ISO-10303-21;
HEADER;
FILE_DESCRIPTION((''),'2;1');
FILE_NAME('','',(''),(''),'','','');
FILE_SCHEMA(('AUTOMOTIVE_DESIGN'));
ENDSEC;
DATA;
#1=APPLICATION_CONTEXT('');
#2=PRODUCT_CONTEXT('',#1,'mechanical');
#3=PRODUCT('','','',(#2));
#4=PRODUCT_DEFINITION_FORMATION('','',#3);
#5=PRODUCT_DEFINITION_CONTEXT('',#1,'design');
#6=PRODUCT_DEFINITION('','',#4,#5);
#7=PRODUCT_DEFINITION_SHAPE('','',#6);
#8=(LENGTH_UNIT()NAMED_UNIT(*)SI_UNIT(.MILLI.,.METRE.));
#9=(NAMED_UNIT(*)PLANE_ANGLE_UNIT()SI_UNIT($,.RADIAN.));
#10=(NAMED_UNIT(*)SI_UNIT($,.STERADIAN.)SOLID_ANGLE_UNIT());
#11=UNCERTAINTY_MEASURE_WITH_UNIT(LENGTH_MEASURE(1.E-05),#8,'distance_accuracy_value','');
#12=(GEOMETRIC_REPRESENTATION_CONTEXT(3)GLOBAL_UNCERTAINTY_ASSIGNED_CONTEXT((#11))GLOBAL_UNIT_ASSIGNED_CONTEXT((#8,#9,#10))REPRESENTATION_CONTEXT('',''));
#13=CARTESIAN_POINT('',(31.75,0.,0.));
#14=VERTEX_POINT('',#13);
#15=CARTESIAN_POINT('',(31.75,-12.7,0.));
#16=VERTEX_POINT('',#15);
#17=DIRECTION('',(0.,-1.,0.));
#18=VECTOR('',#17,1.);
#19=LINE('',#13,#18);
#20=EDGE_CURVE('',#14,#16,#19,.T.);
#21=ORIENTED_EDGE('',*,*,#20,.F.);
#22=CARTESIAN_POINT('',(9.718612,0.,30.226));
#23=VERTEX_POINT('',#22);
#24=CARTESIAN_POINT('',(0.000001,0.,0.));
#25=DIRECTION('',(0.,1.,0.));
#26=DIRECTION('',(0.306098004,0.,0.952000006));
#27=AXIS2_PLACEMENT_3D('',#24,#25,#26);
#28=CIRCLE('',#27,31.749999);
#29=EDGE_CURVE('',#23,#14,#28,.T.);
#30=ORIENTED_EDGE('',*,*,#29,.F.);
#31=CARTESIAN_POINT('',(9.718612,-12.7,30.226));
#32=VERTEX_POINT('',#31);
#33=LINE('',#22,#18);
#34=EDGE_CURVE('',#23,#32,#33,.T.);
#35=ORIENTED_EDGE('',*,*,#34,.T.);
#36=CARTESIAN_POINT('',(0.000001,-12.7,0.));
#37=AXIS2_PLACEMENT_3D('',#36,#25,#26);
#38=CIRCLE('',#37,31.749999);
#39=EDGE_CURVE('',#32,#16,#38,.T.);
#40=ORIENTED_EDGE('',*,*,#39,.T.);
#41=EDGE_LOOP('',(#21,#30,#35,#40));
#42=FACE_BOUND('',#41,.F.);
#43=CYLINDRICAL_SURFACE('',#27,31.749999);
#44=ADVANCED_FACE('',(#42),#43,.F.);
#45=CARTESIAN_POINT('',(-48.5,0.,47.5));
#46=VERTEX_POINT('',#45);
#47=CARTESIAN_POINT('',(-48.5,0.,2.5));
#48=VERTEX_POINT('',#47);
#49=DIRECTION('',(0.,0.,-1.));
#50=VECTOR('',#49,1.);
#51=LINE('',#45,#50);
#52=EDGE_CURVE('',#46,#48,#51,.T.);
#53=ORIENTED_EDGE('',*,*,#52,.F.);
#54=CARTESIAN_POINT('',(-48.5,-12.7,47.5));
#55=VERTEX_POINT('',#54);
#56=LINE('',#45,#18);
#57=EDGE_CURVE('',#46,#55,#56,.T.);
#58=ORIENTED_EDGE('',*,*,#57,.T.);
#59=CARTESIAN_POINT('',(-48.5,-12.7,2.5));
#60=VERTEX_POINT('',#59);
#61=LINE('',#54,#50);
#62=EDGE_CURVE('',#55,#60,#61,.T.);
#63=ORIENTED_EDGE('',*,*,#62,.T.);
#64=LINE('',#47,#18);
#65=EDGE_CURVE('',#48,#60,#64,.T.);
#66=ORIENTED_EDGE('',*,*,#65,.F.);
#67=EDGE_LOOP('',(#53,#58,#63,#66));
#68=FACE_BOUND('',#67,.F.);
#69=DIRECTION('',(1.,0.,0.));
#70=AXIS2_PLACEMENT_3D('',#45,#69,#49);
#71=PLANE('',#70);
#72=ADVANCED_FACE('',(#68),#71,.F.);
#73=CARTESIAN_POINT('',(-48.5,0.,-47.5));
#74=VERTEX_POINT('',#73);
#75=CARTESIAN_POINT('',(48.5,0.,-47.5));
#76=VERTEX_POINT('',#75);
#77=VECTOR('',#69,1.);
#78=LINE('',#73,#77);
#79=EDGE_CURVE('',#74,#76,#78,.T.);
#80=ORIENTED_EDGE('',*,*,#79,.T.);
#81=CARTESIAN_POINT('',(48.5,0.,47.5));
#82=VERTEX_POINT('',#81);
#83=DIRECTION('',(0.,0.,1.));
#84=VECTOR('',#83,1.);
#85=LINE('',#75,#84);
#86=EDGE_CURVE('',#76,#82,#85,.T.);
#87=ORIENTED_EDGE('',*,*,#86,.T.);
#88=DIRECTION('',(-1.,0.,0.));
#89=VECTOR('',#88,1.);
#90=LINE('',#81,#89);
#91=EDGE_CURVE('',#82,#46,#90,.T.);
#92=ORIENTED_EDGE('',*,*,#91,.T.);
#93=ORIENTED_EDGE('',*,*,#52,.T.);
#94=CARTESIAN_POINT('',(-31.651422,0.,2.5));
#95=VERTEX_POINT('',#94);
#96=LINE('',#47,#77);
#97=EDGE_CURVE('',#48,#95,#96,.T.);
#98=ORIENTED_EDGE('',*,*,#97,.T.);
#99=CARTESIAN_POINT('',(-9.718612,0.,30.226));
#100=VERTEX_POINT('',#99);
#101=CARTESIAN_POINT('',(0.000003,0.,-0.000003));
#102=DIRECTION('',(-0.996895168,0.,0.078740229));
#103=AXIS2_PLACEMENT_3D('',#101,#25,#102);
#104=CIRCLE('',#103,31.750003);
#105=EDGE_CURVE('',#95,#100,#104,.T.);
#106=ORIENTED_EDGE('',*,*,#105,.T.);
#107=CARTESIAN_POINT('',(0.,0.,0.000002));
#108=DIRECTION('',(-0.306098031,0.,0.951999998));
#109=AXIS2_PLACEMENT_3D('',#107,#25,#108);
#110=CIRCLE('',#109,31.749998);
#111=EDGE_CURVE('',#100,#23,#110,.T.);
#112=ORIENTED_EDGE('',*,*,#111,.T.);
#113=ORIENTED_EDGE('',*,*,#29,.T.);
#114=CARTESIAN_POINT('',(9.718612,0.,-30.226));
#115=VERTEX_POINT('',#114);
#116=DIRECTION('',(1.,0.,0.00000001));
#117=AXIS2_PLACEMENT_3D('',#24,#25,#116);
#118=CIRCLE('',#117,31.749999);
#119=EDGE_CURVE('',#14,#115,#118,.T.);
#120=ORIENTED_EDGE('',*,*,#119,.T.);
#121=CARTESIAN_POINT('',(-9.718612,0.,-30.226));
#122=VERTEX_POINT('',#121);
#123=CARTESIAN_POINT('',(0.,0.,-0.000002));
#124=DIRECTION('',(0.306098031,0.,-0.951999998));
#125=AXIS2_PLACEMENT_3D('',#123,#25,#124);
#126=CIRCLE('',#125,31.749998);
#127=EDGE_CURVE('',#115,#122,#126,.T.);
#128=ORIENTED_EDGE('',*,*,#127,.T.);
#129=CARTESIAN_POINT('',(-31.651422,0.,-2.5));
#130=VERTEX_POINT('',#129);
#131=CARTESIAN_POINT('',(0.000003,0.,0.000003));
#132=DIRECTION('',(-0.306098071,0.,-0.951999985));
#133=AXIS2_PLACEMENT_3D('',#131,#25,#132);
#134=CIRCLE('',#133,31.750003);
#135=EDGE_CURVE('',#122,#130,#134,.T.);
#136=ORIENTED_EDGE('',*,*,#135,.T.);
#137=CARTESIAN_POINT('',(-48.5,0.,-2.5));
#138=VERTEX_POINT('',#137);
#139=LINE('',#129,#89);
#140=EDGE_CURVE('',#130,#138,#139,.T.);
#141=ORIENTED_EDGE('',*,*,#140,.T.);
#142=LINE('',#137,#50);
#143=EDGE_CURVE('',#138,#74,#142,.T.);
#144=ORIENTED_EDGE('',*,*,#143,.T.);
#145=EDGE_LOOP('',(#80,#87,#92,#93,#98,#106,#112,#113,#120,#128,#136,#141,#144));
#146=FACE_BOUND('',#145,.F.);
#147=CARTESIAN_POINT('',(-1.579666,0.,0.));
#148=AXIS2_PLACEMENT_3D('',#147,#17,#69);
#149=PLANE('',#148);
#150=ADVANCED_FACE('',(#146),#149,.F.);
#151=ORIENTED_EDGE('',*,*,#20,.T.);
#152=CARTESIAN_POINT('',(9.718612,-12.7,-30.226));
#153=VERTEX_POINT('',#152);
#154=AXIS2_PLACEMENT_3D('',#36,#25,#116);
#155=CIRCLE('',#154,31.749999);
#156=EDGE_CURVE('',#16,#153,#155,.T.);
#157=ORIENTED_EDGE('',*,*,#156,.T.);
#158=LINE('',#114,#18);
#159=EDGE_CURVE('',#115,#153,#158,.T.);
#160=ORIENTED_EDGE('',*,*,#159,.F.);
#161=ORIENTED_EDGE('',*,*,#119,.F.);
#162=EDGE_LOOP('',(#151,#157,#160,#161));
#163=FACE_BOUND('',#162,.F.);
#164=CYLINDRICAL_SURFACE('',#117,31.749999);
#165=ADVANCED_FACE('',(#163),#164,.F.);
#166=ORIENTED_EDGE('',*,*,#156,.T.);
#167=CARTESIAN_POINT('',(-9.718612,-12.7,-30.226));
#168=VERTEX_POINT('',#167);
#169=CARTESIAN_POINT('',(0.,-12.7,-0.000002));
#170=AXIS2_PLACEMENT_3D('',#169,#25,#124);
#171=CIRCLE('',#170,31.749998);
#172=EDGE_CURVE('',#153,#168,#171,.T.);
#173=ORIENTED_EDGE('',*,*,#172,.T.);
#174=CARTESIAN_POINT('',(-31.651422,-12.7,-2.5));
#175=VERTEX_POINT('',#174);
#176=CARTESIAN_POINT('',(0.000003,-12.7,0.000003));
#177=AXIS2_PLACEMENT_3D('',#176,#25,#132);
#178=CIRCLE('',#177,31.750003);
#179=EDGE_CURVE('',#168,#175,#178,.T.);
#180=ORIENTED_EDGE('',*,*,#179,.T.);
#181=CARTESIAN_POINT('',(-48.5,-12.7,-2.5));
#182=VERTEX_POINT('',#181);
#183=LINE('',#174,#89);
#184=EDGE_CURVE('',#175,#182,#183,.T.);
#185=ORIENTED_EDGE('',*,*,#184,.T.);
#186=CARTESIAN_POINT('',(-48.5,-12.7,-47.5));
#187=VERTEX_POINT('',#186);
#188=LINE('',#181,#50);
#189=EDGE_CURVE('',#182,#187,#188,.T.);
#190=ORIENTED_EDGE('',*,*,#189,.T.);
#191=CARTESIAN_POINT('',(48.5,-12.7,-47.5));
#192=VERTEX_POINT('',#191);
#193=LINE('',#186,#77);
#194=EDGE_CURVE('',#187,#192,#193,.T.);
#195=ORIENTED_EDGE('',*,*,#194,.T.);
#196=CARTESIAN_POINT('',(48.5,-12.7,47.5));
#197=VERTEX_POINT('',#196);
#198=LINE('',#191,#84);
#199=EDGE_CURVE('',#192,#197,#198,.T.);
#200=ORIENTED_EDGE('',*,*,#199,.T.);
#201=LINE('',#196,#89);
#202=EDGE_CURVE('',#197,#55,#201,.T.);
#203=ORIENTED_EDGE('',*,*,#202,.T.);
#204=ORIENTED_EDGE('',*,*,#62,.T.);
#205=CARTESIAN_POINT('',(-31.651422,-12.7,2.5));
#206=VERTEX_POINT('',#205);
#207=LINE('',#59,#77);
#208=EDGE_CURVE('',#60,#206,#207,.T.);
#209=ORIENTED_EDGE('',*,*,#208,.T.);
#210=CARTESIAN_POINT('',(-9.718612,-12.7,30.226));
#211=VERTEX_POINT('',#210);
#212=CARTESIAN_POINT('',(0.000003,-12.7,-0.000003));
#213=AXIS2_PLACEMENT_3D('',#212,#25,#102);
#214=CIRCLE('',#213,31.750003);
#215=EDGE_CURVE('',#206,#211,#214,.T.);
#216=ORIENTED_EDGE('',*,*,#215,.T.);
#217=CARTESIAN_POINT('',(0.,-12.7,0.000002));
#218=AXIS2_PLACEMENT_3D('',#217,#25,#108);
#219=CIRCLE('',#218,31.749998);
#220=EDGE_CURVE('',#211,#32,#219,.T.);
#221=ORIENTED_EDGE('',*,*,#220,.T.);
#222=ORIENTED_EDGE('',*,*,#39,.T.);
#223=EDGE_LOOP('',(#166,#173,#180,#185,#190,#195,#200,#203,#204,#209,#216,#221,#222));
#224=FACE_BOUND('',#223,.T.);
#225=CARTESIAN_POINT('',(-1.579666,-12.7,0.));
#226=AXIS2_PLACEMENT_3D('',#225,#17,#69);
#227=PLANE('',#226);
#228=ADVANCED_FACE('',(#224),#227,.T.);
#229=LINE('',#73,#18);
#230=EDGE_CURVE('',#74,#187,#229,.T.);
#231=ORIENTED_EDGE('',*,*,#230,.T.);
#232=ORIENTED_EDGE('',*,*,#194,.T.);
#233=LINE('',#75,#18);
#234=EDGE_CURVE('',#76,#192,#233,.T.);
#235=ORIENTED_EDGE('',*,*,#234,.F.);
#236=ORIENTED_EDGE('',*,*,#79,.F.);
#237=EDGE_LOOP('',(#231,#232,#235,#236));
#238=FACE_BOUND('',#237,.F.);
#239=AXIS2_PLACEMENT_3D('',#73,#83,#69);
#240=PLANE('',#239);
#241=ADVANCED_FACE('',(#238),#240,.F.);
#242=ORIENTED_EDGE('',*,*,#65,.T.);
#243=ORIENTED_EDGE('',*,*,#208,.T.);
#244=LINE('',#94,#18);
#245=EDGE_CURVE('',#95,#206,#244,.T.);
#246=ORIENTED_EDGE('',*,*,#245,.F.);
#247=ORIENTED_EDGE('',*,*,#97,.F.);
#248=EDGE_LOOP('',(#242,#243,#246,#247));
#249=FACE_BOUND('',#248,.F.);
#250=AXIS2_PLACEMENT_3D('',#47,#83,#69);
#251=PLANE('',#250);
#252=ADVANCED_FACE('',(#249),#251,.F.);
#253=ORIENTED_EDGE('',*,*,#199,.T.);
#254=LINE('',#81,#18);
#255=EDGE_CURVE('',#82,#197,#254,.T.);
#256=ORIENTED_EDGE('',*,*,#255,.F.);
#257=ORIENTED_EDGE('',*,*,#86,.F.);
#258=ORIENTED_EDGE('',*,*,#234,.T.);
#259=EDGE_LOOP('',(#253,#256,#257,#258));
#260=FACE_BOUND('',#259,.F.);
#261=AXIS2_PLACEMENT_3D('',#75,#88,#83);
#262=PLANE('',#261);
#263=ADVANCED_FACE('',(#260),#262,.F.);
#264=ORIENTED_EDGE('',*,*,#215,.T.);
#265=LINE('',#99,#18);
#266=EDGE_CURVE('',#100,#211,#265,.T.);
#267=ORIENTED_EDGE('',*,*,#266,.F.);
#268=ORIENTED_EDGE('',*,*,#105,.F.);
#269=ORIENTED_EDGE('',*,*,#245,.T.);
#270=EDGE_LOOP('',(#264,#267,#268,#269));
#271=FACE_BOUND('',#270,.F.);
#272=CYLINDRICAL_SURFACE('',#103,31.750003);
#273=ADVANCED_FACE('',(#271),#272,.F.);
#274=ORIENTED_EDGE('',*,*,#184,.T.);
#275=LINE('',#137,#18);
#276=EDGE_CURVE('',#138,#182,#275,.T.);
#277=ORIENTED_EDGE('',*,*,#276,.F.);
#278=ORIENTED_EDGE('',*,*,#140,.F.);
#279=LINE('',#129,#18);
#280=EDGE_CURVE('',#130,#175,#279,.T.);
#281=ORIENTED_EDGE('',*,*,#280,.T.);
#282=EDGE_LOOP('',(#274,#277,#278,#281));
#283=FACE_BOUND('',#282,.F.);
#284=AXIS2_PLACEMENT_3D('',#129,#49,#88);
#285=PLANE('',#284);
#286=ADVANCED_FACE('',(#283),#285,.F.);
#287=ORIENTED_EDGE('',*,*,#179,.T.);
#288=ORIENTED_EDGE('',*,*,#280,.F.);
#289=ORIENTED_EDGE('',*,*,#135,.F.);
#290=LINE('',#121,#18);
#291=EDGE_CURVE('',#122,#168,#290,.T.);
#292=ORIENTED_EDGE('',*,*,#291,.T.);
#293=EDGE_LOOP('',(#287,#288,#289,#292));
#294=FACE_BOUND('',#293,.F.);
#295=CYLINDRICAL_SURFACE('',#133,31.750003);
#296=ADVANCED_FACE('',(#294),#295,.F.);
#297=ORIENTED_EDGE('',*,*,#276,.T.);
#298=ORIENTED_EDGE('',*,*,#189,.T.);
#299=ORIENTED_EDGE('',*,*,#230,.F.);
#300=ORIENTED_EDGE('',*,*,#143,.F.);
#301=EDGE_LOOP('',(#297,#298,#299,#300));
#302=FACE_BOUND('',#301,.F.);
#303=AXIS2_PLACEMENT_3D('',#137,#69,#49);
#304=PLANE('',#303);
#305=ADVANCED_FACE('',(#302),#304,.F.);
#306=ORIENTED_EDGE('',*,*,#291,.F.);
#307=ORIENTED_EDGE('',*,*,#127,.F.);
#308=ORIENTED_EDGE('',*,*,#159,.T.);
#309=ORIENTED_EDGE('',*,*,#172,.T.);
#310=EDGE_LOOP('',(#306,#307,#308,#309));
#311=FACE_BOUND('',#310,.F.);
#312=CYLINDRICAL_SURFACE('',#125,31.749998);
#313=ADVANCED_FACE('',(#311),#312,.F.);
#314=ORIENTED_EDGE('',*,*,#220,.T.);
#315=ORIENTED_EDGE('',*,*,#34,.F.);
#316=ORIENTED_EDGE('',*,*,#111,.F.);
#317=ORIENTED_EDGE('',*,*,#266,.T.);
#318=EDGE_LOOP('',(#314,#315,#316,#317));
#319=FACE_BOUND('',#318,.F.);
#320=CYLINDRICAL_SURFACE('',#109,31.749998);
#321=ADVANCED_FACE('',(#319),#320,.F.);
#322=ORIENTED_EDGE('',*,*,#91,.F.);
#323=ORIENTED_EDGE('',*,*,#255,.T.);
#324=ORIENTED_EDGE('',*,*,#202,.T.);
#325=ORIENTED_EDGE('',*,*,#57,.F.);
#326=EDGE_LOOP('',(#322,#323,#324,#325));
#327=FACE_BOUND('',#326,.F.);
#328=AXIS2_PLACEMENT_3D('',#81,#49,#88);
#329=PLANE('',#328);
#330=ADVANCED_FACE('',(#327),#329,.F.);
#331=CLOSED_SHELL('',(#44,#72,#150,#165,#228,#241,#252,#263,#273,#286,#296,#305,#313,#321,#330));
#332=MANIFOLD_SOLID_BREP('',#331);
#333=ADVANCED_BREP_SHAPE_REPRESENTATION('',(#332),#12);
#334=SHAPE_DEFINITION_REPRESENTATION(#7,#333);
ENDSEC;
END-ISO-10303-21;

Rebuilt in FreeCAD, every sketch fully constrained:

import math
import FreeCAD as App
import Part
import Sketcher
from FreeCAD import Vector

doc = App.newDocument("Part")
body = doc.addObject("PartDesign::Body", "Body")

sketch1 = body.newObject("Sketcher::SketchObject", "Sketch")
sketch1.AttachmentSupport = (doc.getObject("XZ_Plane"), [""])
sketch1.MapMode = "FlatFace"
sketch1.addGeometry(Part.ArcOfCircle(Part.Circle(Vector(0, 0, 0), Vector(0, 0, 1), 32), math.radians(108), math.radians(175)), False)
sketch1.addGeometry(Part.ArcOfCircle(Part.Circle(Vector(0, 0, 0), Vector(0, 0, 1), 32), math.radians(72), math.radians(108)), False)
sketch1.addGeometry(Part.ArcOfCircle(Part.Circle(Vector(0, 0, 0), Vector(0, 0, 1), 32), math.radians(0), math.radians(72)), False)
sketch1.addGeometry(Part.ArcOfCircle(Part.Circle(Vector(0, 0, 0), Vector(0, 0, 1), 32), math.radians(-72), math.radians(0)), False)
sketch1.addGeometry(Part.ArcOfCircle(Part.Circle(Vector(0, 0, 0), Vector(0, 0, 1), 32), math.radians(-108), math.radians(-72)), False)
sketch1.addGeometry(Part.ArcOfCircle(Part.Circle(Vector(0, 0, 0), Vector(0, 0, 1), 32), math.radians(-175), math.radians(-108)), False)
sketch1.addGeometry(Part.LineSegment(Vector(-32, -2, 0), Vector(-48, -2, 0)), False)
sketch1.addGeometry(Part.LineSegment(Vector(-48, -2, 0), Vector(-48, -48, 0)), False)
sketch1.addGeometry(Part.LineSegment(Vector(-48, -48, 0), Vector(48, -48, 0)), False)
sketch1.addGeometry(Part.LineSegment(Vector(48, -48, 0), Vector(48, 48, 0)), False)
sketch1.addGeometry(Part.LineSegment(Vector(48, 48, 0), Vector(-48, 48, 0)), False)
sketch1.addGeometry(Part.LineSegment(Vector(-48, 48, 0), Vector(-48, 2, 0)), False)
sketch1.addGeometry(Part.LineSegment(Vector(-48, 2, 0), Vector(-32, 2, 0)), False)
sketch1.addConstraint(Sketcher.Constraint("Tangent", 0, 1, 1, 2))
sketch1.addConstraint(Sketcher.Constraint("Tangent", 1, 1, 2, 2))
sketch1.addConstraint(Sketcher.Constraint("Tangent", 2, 1, 3, 2))
sketch1.addConstraint(Sketcher.Constraint("Tangent", 3, 1, 4, 2))
sketch1.addConstraint(Sketcher.Constraint("Tangent", 4, 1, 5, 2))
sketch1.addConstraint(Sketcher.Constraint("Coincident", 5, 1, 6, 1))
sketch1.addConstraint(Sketcher.Constraint("Coincident", 6, 2, 7, 1))
sketch1.addConstraint(Sketcher.Constraint("Coincident", 7, 2, 8, 1))
sketch1.addConstraint(Sketcher.Constraint("Coincident", 8, 2, 9, 1))
sketch1.addConstraint(Sketcher.Constraint("Coincident", 9, 2, 10, 1))
sketch1.addConstraint(Sketcher.Constraint("Coincident", 10, 2, 11, 1))
sketch1.addConstraint(Sketcher.Constraint("Coincident", 11, 2, 12, 1))
sketch1.addConstraint(Sketcher.Constraint("Coincident", 12, 2, 0, 2))
sketch1.addConstraint(Sketcher.Constraint("Horizontal", 6))
sketch1.addConstraint(Sketcher.Constraint("Vertical", 7))
sketch1.addConstraint(Sketcher.Constraint("Horizontal", 8))
sketch1.addConstraint(Sketcher.Constraint("Vertical", 9))
sketch1.addConstraint(Sketcher.Constraint("Horizontal", 10))
sketch1.addConstraint(Sketcher.Constraint("Vertical", 11))
sketch1.addConstraint(Sketcher.Constraint("Horizontal", 12))
sketch1.addConstraint(Sketcher.Constraint("Coincident", 0, 3, -1, 1))
sketch1.addConstraint(Sketcher.Constraint("Coincident", 2, 3, -1, 1))
sketch1.addConstraint(Sketcher.Constraint("Coincident", 4, 3, -1, 1))
sketch1.addConstraint(Sketcher.Constraint("Equal", 0, 5))
sketch1.addConstraint(Sketcher.Constraint("Symmetric", 7, 2, 9, 2, -1, 1))
sketch1.addConstraint(Sketcher.Constraint("Symmetric", 6, 2, 11, 2, -1))
sketch1.addConstraint(Sketcher.Constraint("PointOnObject", 2, 1, -1))
sketch1.addConstraint(Sketcher.Constraint("Horizontal", 0, 1, 1, 1))
sketch1.addConstraint(Sketcher.Constraint("Horizontal", 3, 1, 4, 1))
sketch1.addConstraint(Sketcher.Constraint("Vertical", 1, 1, 3, 1))
sketch1.addConstraint(Sketcher.Constraint("DistanceX", 8, 1, 8, 2, 97.0))
sketch1.addConstraint(Sketcher.Constraint("DistanceY", 7, 2, 7, 1, 45.0))
sketch1.addConstraint(Sketcher.Constraint("DistanceY", 9, 1, 9, 2, 95.0))
sketch1.addConstraint(Sketcher.Constraint("Radius", 1, 31.749998))
sketch1.addConstraint(Sketcher.Constraint("DistanceY", -1, 1, 0, 1, 30.226))
pad1 = body.newObject("PartDesign::Pad", "Pad")
pad1.Profile = sketch1
pad1.Length = 12.7

doc.recompute()
